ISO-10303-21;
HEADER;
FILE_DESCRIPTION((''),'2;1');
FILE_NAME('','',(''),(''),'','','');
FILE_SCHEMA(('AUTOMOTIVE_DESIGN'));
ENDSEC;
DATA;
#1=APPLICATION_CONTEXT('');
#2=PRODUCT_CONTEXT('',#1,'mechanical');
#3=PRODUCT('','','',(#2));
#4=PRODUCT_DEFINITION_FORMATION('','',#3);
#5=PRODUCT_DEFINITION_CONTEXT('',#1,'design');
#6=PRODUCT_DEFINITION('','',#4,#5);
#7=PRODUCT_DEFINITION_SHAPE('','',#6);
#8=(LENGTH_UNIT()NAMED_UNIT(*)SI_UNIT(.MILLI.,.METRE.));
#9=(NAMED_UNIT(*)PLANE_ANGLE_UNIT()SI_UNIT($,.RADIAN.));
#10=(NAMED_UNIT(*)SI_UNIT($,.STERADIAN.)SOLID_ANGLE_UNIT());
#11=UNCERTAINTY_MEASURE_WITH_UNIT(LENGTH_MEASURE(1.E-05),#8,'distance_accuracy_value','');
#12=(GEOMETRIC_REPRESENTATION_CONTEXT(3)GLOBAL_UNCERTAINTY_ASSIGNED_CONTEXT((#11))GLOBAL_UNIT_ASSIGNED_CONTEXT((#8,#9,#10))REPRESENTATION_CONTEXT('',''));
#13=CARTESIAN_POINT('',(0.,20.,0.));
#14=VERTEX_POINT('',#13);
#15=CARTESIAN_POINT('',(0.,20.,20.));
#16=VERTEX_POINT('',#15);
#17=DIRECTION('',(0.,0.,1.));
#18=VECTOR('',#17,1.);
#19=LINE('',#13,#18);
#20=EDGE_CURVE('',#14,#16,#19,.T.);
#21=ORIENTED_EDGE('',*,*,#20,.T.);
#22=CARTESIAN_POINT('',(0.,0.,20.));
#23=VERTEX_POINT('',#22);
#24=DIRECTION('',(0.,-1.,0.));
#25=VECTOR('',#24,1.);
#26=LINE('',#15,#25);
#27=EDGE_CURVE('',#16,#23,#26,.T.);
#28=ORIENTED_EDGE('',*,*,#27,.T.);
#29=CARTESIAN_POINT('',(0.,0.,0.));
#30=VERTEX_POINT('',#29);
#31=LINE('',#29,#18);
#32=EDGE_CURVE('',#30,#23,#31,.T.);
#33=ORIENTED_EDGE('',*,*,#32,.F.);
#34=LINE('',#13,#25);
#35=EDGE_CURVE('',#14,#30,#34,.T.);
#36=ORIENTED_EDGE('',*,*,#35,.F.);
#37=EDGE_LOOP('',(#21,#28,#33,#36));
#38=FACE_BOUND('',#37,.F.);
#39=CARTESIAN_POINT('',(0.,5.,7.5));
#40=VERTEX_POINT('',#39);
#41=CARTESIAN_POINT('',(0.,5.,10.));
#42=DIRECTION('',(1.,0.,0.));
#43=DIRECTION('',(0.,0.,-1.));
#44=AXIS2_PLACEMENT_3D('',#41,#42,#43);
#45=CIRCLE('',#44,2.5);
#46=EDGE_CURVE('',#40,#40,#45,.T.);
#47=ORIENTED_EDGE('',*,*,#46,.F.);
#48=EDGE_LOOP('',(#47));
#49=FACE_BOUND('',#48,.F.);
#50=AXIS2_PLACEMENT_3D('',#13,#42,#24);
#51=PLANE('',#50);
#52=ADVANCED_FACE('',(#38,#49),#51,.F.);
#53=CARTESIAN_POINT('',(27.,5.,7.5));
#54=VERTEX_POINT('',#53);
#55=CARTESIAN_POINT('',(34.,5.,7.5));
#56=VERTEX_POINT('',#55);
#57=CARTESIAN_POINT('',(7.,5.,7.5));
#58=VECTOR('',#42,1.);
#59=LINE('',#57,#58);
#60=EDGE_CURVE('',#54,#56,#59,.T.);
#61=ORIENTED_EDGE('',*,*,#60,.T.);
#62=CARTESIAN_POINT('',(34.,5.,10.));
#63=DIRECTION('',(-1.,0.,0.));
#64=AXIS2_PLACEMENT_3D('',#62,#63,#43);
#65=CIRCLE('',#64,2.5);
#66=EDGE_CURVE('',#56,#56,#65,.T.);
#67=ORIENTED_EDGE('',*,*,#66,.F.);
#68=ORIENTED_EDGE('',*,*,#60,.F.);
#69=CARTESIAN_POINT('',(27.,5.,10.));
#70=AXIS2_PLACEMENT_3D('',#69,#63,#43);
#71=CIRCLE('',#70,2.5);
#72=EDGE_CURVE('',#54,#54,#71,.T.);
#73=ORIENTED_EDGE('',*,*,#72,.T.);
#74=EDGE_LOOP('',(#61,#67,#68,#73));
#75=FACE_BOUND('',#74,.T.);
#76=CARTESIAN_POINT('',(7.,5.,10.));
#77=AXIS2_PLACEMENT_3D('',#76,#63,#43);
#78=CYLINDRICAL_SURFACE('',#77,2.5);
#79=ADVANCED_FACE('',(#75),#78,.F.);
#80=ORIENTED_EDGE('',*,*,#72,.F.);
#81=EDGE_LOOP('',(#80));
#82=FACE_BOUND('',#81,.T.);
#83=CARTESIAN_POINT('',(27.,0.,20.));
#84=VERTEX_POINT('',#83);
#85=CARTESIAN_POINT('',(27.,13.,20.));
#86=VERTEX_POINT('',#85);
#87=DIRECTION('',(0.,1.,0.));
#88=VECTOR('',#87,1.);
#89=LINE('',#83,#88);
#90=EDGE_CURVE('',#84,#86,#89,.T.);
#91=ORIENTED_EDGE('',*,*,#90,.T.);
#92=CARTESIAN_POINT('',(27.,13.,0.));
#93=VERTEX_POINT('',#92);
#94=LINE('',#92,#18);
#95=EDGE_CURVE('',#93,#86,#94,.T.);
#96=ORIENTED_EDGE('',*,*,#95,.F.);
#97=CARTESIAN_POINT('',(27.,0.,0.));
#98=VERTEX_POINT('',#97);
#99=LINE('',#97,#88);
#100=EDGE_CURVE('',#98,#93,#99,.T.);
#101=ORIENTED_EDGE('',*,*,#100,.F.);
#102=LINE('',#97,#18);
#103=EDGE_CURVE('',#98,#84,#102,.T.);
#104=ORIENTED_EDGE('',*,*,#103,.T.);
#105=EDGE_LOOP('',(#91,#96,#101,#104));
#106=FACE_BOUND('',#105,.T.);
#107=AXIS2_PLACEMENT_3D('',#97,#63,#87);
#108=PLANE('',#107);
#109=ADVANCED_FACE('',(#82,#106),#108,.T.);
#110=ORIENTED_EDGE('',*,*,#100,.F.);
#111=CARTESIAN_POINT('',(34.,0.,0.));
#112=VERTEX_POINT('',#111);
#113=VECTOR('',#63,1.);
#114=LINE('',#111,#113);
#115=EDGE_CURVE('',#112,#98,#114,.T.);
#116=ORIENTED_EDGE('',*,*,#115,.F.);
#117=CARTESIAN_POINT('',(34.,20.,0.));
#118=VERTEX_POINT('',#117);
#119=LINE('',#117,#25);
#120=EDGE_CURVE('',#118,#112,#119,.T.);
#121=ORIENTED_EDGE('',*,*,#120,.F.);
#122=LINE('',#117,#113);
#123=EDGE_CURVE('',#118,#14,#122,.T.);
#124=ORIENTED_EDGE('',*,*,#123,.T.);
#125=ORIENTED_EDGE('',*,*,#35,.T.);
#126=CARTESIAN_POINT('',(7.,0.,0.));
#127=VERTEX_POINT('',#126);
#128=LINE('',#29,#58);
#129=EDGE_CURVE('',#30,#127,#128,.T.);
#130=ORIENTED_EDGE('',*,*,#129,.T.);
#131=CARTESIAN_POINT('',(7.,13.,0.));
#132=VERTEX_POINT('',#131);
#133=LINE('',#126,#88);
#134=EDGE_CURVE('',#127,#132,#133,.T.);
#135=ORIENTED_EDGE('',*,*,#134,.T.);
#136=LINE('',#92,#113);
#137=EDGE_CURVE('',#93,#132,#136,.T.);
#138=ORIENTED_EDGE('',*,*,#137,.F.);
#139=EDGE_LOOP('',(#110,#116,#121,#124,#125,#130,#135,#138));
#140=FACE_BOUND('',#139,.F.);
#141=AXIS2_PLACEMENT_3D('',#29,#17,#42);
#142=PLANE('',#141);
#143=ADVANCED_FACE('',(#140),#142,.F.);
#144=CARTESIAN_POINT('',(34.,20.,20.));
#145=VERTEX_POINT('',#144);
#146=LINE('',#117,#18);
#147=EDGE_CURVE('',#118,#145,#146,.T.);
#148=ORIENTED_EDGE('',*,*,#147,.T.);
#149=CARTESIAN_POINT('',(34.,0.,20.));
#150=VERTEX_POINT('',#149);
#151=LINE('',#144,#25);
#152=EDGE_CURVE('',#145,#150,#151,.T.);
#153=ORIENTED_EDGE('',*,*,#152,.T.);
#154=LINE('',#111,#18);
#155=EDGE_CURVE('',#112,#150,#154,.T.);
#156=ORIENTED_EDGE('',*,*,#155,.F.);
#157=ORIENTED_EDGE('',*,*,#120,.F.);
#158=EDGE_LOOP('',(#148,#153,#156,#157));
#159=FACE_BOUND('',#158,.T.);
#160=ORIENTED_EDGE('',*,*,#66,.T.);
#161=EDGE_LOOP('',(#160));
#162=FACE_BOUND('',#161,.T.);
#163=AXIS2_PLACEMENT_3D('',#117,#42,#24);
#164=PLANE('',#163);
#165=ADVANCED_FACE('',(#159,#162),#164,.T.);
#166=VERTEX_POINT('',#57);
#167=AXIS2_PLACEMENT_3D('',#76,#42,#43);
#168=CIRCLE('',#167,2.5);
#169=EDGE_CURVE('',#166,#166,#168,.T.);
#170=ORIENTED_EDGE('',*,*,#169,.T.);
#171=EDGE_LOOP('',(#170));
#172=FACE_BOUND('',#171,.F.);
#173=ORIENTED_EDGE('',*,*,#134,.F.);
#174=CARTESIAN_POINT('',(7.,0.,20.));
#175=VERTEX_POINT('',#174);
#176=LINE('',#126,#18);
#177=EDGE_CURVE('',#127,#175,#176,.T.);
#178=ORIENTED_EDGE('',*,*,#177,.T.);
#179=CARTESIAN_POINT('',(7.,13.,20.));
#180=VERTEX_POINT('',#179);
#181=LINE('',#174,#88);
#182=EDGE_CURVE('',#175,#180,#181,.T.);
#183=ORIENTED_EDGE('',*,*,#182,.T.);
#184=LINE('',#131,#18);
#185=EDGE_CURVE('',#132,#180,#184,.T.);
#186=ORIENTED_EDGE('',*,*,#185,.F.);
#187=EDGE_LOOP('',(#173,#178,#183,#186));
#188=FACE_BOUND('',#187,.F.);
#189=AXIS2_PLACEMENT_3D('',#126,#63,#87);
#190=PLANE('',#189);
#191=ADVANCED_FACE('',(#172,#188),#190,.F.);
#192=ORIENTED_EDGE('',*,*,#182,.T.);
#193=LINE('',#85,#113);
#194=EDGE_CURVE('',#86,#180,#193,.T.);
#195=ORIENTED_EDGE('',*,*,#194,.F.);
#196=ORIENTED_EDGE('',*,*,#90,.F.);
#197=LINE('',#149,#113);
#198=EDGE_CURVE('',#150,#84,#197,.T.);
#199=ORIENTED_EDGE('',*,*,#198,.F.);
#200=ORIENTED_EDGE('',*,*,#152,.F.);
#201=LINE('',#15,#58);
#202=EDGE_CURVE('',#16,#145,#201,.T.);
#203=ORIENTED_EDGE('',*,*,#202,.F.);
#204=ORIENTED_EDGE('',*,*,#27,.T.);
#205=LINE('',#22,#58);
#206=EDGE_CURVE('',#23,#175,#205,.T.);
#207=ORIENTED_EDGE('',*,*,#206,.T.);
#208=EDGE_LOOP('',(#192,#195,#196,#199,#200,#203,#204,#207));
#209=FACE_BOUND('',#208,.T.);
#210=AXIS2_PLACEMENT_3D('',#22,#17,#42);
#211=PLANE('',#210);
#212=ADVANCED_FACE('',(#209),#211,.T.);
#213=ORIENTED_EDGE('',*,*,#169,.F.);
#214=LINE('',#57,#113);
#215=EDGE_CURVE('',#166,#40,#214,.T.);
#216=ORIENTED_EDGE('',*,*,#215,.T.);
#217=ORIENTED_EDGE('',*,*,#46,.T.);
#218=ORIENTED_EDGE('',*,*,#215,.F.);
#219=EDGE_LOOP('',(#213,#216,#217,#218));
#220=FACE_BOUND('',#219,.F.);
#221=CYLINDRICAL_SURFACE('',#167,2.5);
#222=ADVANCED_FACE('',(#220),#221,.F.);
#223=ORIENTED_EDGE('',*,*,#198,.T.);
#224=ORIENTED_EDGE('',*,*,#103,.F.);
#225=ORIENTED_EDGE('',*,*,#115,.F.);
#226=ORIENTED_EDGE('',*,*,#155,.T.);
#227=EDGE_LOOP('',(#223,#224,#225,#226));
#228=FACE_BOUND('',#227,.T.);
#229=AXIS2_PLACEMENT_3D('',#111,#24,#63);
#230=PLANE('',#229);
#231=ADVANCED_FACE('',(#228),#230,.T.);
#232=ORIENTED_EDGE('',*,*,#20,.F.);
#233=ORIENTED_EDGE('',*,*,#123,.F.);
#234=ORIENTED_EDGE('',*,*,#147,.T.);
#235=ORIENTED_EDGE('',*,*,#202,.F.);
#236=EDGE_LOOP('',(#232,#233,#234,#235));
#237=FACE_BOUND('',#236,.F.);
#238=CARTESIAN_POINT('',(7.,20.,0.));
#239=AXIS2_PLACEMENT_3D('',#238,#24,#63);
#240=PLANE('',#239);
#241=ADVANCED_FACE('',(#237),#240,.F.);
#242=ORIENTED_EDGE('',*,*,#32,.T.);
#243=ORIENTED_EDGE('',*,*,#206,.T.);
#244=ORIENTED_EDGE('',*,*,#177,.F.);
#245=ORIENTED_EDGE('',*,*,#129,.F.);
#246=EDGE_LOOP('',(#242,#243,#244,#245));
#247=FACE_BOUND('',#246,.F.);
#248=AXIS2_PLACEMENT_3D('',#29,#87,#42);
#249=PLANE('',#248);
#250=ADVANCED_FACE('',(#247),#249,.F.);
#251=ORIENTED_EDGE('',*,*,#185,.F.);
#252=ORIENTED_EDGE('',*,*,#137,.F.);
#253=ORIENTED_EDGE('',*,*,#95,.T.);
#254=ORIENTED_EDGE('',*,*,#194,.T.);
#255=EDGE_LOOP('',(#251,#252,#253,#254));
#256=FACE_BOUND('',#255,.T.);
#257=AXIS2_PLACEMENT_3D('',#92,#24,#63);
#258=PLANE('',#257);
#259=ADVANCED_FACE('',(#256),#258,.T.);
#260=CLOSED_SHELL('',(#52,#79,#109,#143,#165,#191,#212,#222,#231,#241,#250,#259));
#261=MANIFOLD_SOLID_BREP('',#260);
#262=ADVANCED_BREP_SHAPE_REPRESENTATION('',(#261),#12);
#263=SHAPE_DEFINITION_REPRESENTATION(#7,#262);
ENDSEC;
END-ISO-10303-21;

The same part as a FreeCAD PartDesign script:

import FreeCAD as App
import Part
import Sketcher
from FreeCAD import Vector
Q = App.Units.Quantity

doc = App.newDocument("Part")
body = doc.addObject("PartDesign::Body", "Body")

sketch1 = doc.addObject("Sketcher::SketchObject", "Sketch")
body.addObject(sketch1)
sketch1.AttachmentSupport = (doc.XY_Plane, [""])
sketch1.MapMode = "FlatFace"
sketch1.addGeometry([
    Part.LineSegment(Vector(0, 20, 0), Vector(0, 0, 0)),
    Part.LineSegment(Vector(0, 0, 0), Vector(7, 0, 0)),
    Part.LineSegment(Vector(7, 0, 0), Vector(7, 13, 0)),
    Part.LineSegment(Vector(7, 13, 0), Vector(27, 13, 0)),
    Part.LineSegment(Vector(27, 13, 0), Vector(27, 0, 0)),
    Part.LineSegment(Vector(27, 0, 0), Vector(34, 0, 0)),
    Part.LineSegment(Vector(34, 0, 0), Vector(34, 20, 0)),
    Part.LineSegment(Vector(34, 20, 0), Vector(0, 20, 0)),
], False)
sketch1.addConstraint([
    Sketcher.Constraint("Coincident", 0, 2, 1, 1),
    Sketcher.Constraint("Coincident", 1, 2, 2, 1),
    Sketcher.Constraint("Coincident", 2, 2, 3, 1),
    Sketcher.Constraint("Coincident", 3, 2, 4, 1),
    Sketcher.Constraint("Coincident", 4, 2, 5, 1),
    Sketcher.Constraint("Coincident", 5, 2, 6, 1),
    Sketcher.Constraint("Coincident", 6, 2, 7, 1),
    Sketcher.Constraint("Coincident", 7, 2, 0, 1),
    Sketcher.Constraint("Vertical", 0),
    Sketcher.Constraint("Horizontal", 1),
    Sketcher.Constraint("Vertical", 2),
    Sketcher.Constraint("Horizontal", 3),
    Sketcher.Constraint("Vertical", 4),
    Sketcher.Constraint("Horizontal", 5),
    Sketcher.Constraint("Vertical", 6),
    Sketcher.Constraint("Horizontal", 7),
    Sketcher.Constraint("Coincident", 0, 2, -1, 1),
    Sketcher.Constraint("PointOnObject", 4, 2, -1),
    Sketcher.Constraint("Equal", 1, 5),
    Sketcher.Constraint("Equal", 3, 0),
    Sketcher.Constraint("DistanceX", 1, 1, 1, 2, Q("7 mm")),
    Sketcher.Constraint("DistanceX", 7, 2, 7, 1, Q("34 mm")),
    Sketcher.Constraint("DistanceY", 2, 1, 2, 2, Q("13 mm")),
])
pad1 = doc.addObject("PartDesign::Pad", "Pad")
body.addObject(pad1)
pad1.Profile = sketch1
pad1.Length = 20

sketch2 = doc.addObject("Sketcher::SketchObject", "Sketch001")
body.addObject(sketch2)
sketch2.AttachmentSupport = (doc.YZ_Plane, [""])
sketch2.MapMode = "FlatFace"
sketch2.AttachmentOffset = App.Placement(Vector(0, 0, 7), App.Rotation())
sketch2.addGeometry(Part.Circle(Vector(5, 10, 0), Vector(0, 0, 1), 2.5), False)
sketch2.addConstraint([
    Sketcher.Constraint("Diameter", 0, Q("5 mm")),
    Sketcher.Constraint("DistanceX", -1, 1, 0, 3, Q("5 mm")),
    Sketcher.Constraint("DistanceY", -1, 1, 0, 3, Q("10 mm")),
])
pocket1 = doc.addObject("PartDesign::Pocket", "Pocket")
body.addObject(pocket1)
pocket1.Profile = sketch2
pocket1.Type = "ThroughAll"
pocket1.Midplane = True

doc.recompute()
